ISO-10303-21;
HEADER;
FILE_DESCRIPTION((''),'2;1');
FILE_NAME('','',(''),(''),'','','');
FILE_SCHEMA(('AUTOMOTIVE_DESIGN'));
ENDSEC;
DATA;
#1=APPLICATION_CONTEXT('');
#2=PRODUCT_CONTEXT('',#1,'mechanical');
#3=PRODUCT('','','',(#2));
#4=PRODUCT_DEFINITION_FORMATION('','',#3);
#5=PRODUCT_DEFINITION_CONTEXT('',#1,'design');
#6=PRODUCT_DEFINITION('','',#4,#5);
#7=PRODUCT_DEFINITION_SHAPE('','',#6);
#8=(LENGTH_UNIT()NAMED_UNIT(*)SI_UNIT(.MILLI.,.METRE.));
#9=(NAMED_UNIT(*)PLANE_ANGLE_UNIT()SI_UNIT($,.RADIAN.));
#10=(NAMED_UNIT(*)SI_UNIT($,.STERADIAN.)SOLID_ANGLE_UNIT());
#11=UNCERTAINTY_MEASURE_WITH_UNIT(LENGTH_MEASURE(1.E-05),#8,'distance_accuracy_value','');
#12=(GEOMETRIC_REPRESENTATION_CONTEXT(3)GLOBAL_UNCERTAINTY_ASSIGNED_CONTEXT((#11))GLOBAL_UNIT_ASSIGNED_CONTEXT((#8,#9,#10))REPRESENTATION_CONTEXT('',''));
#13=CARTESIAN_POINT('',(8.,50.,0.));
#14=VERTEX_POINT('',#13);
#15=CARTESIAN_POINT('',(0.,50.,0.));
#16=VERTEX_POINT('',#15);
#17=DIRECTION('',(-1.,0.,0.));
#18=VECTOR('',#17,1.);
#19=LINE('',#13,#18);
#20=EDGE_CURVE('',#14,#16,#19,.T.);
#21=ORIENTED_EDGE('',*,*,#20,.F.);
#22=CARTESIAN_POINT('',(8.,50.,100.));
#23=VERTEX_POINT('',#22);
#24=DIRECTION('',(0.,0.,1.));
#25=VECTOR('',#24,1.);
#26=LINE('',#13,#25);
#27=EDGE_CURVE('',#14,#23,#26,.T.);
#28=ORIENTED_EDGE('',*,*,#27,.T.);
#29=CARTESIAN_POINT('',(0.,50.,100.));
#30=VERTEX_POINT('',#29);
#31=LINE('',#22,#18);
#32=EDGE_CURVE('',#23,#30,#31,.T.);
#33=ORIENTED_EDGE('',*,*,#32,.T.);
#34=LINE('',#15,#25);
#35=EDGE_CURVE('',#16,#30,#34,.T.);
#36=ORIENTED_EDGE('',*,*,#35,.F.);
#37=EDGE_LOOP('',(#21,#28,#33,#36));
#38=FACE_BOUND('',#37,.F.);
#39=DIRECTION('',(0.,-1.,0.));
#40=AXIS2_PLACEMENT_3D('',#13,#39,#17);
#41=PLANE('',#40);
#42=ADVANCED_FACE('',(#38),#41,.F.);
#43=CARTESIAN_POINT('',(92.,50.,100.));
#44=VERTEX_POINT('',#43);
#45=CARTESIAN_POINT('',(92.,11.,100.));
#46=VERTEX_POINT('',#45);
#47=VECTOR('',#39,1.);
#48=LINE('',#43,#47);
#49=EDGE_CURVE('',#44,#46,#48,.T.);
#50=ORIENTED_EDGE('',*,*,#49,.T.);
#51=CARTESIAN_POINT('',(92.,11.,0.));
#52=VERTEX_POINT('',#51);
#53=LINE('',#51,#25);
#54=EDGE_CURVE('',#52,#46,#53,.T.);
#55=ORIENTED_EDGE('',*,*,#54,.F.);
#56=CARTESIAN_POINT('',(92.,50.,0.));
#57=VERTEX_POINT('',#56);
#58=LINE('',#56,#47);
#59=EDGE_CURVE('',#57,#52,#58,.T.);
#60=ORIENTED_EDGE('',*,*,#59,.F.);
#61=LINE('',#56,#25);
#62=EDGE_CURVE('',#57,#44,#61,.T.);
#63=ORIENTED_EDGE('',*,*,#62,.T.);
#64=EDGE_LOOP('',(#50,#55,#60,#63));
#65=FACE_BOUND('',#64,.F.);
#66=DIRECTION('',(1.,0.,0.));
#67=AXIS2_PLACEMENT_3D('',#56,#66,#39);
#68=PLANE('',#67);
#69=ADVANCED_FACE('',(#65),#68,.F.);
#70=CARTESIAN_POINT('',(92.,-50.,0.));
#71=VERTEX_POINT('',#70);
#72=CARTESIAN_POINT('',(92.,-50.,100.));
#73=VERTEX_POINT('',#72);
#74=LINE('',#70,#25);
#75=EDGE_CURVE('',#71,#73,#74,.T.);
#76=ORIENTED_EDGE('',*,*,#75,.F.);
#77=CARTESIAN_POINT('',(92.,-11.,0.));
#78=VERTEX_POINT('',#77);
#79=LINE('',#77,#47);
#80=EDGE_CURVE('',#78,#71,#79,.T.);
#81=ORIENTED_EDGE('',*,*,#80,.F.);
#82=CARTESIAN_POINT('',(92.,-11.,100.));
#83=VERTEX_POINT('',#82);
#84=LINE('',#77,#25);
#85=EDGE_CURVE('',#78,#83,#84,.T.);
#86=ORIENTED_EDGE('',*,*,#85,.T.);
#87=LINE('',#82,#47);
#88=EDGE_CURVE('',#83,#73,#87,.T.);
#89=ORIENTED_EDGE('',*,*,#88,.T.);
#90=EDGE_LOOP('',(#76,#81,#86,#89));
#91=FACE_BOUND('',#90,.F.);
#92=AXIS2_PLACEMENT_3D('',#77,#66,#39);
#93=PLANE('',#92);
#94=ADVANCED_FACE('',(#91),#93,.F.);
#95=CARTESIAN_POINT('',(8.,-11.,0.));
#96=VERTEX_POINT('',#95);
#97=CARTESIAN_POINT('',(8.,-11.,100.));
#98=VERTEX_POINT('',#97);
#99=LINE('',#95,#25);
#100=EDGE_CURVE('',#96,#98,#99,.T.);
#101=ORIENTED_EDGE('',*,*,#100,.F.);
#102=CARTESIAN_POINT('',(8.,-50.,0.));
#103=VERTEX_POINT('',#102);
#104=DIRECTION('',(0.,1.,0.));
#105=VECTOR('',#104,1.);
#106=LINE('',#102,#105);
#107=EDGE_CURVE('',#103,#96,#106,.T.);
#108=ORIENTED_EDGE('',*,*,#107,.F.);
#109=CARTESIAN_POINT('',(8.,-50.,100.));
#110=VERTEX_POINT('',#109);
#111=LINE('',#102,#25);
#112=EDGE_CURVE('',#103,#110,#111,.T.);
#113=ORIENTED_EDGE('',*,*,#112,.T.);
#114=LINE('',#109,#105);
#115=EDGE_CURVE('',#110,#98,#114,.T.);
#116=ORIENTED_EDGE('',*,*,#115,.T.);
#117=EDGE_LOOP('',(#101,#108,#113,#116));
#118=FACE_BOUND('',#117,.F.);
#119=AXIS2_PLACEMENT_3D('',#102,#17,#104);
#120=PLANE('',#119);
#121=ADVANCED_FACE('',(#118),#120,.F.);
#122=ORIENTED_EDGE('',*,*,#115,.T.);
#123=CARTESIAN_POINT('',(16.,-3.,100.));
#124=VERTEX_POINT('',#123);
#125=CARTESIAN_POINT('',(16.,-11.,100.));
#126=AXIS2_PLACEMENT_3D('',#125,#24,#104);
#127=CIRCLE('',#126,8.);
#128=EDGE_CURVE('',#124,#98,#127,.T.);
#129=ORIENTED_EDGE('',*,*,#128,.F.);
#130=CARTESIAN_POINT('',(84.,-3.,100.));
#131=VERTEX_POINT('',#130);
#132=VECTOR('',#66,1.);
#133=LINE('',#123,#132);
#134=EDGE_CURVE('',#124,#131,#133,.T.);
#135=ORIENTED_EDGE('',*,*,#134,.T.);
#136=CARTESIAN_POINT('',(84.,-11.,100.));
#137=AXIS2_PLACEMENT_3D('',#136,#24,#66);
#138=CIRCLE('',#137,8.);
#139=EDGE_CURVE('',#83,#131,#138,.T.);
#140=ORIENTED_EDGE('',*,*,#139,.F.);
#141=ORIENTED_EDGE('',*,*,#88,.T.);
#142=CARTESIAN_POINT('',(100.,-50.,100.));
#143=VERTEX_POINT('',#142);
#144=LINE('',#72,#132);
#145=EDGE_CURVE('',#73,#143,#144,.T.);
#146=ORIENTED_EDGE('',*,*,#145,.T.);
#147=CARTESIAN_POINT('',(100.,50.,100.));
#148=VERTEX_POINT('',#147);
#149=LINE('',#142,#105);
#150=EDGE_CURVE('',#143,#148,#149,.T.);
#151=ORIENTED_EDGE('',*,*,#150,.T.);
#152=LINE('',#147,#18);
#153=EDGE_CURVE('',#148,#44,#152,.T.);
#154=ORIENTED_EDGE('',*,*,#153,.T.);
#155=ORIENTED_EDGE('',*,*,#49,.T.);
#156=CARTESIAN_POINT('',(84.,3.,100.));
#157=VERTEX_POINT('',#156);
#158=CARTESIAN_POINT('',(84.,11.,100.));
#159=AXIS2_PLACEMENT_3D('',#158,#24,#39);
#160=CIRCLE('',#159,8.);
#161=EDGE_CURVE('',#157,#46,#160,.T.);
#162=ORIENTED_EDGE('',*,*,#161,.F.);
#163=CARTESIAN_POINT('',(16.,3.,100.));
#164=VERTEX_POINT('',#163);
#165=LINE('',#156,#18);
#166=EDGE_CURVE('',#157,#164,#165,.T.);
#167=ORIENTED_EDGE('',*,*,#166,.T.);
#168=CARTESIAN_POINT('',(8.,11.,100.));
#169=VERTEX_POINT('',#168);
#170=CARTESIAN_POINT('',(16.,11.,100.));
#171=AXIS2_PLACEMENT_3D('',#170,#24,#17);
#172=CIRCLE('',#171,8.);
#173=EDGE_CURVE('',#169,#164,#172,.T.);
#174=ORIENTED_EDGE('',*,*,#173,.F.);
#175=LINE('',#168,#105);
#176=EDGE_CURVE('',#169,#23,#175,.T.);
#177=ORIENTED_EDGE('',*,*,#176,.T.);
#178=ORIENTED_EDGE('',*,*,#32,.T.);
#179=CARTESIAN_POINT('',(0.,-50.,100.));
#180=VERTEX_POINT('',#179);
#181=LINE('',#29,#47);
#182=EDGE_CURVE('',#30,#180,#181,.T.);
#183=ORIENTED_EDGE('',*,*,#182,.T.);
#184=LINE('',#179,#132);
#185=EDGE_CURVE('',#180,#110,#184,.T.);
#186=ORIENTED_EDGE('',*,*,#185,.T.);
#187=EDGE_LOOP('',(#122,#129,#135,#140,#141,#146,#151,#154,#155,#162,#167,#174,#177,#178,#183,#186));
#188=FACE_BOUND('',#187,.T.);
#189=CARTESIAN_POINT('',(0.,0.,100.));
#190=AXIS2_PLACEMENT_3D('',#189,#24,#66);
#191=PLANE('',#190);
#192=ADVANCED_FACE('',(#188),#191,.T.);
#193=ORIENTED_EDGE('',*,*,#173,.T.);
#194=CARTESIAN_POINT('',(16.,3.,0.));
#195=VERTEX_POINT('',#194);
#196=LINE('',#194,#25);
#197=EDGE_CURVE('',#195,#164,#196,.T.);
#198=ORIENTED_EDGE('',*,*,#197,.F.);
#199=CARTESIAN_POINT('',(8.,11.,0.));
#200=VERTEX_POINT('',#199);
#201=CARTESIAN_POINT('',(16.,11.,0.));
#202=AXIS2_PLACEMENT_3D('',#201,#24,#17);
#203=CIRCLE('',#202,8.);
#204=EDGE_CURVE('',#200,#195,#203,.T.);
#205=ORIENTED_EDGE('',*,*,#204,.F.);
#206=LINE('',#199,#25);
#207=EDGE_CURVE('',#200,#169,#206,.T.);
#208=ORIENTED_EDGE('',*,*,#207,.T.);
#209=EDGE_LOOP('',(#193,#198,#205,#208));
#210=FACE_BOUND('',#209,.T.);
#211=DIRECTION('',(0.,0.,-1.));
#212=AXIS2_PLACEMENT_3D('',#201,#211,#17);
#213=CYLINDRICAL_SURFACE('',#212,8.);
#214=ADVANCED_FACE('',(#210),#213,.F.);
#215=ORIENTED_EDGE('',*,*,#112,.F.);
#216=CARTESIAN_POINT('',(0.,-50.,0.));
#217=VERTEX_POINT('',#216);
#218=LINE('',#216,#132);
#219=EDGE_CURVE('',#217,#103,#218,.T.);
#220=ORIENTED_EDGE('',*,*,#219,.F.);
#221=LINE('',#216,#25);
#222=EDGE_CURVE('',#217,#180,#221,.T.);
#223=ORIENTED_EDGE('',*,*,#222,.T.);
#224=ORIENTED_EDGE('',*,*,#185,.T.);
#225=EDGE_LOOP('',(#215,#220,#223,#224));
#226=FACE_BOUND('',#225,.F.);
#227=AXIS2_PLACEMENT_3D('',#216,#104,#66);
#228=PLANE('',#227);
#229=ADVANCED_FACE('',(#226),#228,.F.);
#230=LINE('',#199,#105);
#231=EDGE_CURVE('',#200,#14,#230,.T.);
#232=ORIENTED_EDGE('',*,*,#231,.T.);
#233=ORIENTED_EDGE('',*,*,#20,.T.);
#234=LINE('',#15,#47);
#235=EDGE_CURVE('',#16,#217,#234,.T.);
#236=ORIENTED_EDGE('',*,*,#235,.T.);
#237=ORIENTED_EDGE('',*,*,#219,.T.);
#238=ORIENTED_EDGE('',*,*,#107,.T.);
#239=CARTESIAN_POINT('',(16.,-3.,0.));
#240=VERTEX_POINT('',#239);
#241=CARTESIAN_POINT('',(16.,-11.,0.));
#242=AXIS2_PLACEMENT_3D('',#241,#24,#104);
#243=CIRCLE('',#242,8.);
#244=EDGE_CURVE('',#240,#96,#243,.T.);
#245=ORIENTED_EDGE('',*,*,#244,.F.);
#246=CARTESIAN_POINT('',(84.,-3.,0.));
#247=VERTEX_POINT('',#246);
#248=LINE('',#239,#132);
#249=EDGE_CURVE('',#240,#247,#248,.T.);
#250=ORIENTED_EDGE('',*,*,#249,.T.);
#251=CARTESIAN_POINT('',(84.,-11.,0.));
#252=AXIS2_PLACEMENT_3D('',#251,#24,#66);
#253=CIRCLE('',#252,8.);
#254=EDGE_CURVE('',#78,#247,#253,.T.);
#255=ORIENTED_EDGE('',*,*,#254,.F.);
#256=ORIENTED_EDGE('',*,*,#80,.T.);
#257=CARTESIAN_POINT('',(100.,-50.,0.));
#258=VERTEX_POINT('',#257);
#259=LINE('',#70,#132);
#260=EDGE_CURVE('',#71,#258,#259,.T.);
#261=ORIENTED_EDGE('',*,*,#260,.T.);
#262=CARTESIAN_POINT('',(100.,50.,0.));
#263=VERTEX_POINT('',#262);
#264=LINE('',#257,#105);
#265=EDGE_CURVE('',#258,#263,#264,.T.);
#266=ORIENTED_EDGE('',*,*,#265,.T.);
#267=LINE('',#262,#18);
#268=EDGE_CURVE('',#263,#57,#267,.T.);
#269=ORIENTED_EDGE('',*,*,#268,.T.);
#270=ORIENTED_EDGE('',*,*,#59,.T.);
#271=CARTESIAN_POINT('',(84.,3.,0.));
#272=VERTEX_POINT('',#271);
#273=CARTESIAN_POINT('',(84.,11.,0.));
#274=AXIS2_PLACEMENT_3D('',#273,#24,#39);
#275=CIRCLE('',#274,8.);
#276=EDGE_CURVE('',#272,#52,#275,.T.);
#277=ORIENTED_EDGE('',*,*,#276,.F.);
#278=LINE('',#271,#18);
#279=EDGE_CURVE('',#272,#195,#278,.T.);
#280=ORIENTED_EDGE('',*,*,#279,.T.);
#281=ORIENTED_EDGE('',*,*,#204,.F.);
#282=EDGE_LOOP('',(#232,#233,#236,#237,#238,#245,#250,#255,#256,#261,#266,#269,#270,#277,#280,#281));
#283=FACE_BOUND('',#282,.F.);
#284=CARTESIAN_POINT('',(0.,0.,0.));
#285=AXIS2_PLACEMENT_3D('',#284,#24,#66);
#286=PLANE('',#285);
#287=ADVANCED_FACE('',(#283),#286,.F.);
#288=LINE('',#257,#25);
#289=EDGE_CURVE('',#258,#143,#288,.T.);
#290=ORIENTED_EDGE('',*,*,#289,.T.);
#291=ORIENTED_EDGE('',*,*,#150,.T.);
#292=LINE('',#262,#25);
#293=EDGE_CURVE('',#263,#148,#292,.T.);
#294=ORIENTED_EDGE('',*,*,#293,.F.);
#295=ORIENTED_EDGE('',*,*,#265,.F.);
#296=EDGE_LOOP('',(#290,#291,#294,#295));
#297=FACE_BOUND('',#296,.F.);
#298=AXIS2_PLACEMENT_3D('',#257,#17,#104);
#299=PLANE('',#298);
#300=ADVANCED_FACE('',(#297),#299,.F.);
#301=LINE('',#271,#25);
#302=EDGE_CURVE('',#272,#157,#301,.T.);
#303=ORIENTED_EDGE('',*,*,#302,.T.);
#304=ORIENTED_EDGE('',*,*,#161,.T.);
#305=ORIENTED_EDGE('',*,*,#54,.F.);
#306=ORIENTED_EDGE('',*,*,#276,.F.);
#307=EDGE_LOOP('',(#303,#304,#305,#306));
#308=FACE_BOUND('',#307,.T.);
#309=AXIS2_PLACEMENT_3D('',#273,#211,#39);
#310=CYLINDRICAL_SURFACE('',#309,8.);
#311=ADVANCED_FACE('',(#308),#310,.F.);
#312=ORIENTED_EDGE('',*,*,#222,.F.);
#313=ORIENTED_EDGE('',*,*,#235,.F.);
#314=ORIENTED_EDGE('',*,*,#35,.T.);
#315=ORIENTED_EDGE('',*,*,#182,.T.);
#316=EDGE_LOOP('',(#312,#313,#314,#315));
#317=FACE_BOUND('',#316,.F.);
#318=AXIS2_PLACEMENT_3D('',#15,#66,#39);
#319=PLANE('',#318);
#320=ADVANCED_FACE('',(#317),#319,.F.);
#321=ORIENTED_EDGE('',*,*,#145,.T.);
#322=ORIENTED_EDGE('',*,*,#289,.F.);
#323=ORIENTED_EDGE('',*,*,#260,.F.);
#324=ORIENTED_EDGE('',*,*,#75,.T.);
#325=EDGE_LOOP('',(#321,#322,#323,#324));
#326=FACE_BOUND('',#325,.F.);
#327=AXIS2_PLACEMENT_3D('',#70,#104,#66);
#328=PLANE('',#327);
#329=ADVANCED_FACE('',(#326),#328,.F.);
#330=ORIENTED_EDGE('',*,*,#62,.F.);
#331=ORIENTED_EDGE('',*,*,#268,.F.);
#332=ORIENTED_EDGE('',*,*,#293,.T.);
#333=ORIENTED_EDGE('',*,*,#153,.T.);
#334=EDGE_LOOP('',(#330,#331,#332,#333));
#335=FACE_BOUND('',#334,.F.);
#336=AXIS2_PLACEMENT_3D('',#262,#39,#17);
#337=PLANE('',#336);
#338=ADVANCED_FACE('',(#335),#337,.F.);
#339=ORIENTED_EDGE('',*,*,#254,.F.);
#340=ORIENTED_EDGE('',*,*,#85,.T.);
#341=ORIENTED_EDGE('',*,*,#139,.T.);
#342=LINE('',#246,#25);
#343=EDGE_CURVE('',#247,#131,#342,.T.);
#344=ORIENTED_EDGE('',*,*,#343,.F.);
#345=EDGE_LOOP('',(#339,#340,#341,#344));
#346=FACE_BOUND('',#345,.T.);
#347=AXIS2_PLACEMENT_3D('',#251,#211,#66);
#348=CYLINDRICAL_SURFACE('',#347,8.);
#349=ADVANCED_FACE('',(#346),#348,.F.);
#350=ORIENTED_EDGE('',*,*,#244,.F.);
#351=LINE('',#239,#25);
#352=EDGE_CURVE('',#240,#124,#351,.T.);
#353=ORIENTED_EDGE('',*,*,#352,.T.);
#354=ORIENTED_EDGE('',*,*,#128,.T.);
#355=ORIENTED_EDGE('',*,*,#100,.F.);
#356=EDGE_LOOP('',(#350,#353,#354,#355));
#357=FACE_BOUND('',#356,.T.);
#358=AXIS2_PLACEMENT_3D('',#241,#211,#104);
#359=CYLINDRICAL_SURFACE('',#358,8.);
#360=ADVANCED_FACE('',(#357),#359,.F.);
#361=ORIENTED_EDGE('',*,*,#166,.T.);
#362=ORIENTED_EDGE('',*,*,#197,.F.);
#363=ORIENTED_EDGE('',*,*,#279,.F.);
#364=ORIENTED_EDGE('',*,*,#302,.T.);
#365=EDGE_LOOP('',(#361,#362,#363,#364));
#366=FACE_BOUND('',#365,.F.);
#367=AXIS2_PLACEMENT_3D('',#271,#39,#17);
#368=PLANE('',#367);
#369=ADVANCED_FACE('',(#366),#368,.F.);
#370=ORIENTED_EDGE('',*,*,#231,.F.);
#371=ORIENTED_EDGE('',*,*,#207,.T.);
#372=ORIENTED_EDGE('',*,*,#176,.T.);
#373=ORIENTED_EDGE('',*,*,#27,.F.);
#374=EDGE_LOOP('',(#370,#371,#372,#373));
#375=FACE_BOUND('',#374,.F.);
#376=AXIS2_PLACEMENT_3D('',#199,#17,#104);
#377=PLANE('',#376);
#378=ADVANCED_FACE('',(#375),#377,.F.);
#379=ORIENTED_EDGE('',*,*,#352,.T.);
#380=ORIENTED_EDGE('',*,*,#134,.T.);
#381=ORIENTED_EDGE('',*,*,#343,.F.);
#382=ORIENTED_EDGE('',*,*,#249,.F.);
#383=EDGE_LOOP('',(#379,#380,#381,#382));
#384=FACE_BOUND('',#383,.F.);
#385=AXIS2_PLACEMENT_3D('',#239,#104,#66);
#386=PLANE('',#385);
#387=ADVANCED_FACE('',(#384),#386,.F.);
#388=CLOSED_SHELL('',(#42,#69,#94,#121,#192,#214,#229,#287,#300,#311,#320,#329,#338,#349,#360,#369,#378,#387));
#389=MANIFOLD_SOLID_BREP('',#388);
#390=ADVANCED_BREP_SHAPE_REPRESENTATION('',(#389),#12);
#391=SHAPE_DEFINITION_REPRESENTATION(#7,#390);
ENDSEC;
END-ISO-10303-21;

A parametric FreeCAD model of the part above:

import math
import FreeCAD as App
import Part
import Sketcher

doc = App.newDocument("Part")
params = doc.addObject("Spreadsheet::Sheet", "Params")
for row, (alias, value) in enumerate([
    ("sketch1_radius", "8 mm"),
    ("sketch1_width", "8 mm"),
    ("sketch1_width2", "68 mm"),
    ("sketch1_height", "100 mm"),
    ("sketch1_height2", "39 mm"),
    ("pad1_length", "100 mm"),
], start=1):
    params.set(f"A{row}", alias)
    params.set(f"B{row}", "=" + value)
    params.setAlias(f"B{row}", alias)

body = doc.addObject("PartDesign::Body", "Body")

# Sketch on XY plane
sketch1 = body.newObject("Sketcher::SketchObject", "Sketch")
sketch1.AttachmentSupport = (doc.getObject("XY_Plane"), [""])
sketch1.MapMode = "FlatFace"
sketch1.addGeometry([
    Part.LineSegment(App.Vector(8, 50, 0), App.Vector(0, 50, 0)),  # 0
    Part.LineSegment(App.Vector(0, 50, 0), App.Vector(0, -50, 0)),  # 1
    Part.LineSegment(App.Vector(0, -50, 0), App.Vector(8, -50, 0)),  # 2
    Part.LineSegment(App.Vector(8, -50, 0), App.Vector(8, -11, 0)),  # 3
    Part.ArcOfCircle(Part.Circle(App.Vector(16, -11, 0), App.Vector(0, 0, 1), 8), math.radians(90), math.radians(180)),  # 4
    Part.LineSegment(App.Vector(16, -3, 0), App.Vector(84, -3, 0)),  # 5
    Part.ArcOfCircle(Part.Circle(App.Vector(84, -11, 0), App.Vector(0, 0, 1), 8), math.radians(0), math.radians(90)),  # 6
    Part.LineSegment(App.Vector(92, -11, 0), App.Vector(92, -50, 0)),  # 7
    Part.LineSegment(App.Vector(92, -50, 0), App.Vector(100, -50, 0)),  # 8
    Part.LineSegment(App.Vector(100, -50, 0), App.Vector(100, 50, 0)),  # 9
    Part.LineSegment(App.Vector(100, 50, 0), App.Vector(92, 50, 0)),  # 10
    Part.LineSegment(App.Vector(92, 50, 0), App.Vector(92, 11, 0)),  # 11
    Part.ArcOfCircle(Part.Circle(App.Vector(84, 11, 0), App.Vector(0, 0, 1), 8), math.radians(-90), math.radians(0)),  # 12
    Part.LineSegment(App.Vector(84, 3, 0), App.Vector(16, 3, 0)),  # 13
    Part.ArcOfCircle(Part.Circle(App.Vector(16, 11, 0), App.Vector(0, 0, 1), 8), math.radians(180), math.radians(270)),  # 14
    Part.LineSegment(App.Vector(8, 11, 0), App.Vector(8, 50, 0)),  # 15
], False)
sketch1.addConstraint([
    Sketcher.Constraint("Coincident", 0, 2, 1, 1),
    Sketcher.Constraint("Coincident", 1, 2, 2, 1),
    Sketcher.Constraint("Coincident", 2, 2, 3, 1),
    Sketcher.Constraint("Tangent", 3, 2, 4, 2),
    Sketcher.Constraint("Tangent", 4, 1, 5, 1),
    Sketcher.Constraint("Tangent", 5, 2, 6, 2),
    Sketcher.Constraint("Tangent", 6, 1, 7, 1),
    Sketcher.Constraint("Coincident", 7, 2, 8, 1),
    Sketcher.Constraint("Coincident", 8, 2, 9, 1),
    Sketcher.Constraint("Coincident", 9, 2, 10, 1),
    Sketcher.Constraint("Coincident", 10, 2, 11, 1),
    Sketcher.Constraint("Tangent", 11, 2, 12, 2),
    Sketcher.Constraint("Tangent", 12, 1, 13, 1),
    Sketcher.Constraint("Tangent", 13, 2, 14, 2),
    Sketcher.Constraint("Tangent", 14, 1, 15, 1),
    Sketcher.Constraint("Coincident", 15, 2, 0, 1),
    Sketcher.Constraint("Horizontal", 0),
    Sketcher.Constraint("Vertical", 1),
    Sketcher.Constraint("Horizontal", 2),
    Sketcher.Constraint("Vertical", 3),
    Sketcher.Constraint("Horizontal", 5),
    Sketcher.Constraint("Vertical", 7),
    Sketcher.Constraint("Horizontal", 8),
    Sketcher.Constraint("Vertical", 9),
    Sketcher.Constraint("Horizontal", 10),
    Sketcher.Constraint("Vertical", 11),
    Sketcher.Constraint("Horizontal", 13),
    Sketcher.Constraint("Vertical", 15),
    Sketcher.Constraint("Equal", 4, 6),
    Sketcher.Constraint("Equal", 6, 12),
    Sketcher.Constraint("Equal", 12, 14),
    Sketcher.Constraint("Symmetric", 0, 2, 1, 2, -1, 1),
    Sketcher.Constraint("Symmetric", 6, 3, 12, 3, -1),
    Sketcher.Constraint("Horizontal", 2, 2, 7, 2),
    Sketcher.Constraint("Horizontal", 0, 2, 9, 2),
    Sketcher.Constraint("Vertical", 4, 3, 14, 3),
    Sketcher.Constraint("Equal", 2, 8),
    Sketcher.Constraint("Radius", 4, 8.0),
    Sketcher.Constraint("DistanceX", 0, 2, 0, 1, 8.0),
    Sketcher.Constraint("DistanceX", 5, 1, 5, 2, 68.0),
    Sketcher.Constraint("DistanceY", 1, 2, 1, 1, 100.0),
    Sketcher.Constraint("DistanceY", 3, 1, 3, 2, 39.0),
])
sketch1.setExpression("Constraints[37]", "Params.sketch1_radius")
sketch1.setExpression("Constraints[38]", "Params.sketch1_width")
sketch1.setExpression("Constraints[39]", "Params.sketch1_width2")
sketch1.setExpression("Constraints[40]", "Params.sketch1_height")
sketch1.setExpression("Constraints[41]", "Params.sketch1_height2")
pad1 = body.newObject("PartDesign::Pad", "Pad")
pad1.Profile = sketch1
pad1.setExpression("Length", "Params.pad1_length")

doc.recompute()
